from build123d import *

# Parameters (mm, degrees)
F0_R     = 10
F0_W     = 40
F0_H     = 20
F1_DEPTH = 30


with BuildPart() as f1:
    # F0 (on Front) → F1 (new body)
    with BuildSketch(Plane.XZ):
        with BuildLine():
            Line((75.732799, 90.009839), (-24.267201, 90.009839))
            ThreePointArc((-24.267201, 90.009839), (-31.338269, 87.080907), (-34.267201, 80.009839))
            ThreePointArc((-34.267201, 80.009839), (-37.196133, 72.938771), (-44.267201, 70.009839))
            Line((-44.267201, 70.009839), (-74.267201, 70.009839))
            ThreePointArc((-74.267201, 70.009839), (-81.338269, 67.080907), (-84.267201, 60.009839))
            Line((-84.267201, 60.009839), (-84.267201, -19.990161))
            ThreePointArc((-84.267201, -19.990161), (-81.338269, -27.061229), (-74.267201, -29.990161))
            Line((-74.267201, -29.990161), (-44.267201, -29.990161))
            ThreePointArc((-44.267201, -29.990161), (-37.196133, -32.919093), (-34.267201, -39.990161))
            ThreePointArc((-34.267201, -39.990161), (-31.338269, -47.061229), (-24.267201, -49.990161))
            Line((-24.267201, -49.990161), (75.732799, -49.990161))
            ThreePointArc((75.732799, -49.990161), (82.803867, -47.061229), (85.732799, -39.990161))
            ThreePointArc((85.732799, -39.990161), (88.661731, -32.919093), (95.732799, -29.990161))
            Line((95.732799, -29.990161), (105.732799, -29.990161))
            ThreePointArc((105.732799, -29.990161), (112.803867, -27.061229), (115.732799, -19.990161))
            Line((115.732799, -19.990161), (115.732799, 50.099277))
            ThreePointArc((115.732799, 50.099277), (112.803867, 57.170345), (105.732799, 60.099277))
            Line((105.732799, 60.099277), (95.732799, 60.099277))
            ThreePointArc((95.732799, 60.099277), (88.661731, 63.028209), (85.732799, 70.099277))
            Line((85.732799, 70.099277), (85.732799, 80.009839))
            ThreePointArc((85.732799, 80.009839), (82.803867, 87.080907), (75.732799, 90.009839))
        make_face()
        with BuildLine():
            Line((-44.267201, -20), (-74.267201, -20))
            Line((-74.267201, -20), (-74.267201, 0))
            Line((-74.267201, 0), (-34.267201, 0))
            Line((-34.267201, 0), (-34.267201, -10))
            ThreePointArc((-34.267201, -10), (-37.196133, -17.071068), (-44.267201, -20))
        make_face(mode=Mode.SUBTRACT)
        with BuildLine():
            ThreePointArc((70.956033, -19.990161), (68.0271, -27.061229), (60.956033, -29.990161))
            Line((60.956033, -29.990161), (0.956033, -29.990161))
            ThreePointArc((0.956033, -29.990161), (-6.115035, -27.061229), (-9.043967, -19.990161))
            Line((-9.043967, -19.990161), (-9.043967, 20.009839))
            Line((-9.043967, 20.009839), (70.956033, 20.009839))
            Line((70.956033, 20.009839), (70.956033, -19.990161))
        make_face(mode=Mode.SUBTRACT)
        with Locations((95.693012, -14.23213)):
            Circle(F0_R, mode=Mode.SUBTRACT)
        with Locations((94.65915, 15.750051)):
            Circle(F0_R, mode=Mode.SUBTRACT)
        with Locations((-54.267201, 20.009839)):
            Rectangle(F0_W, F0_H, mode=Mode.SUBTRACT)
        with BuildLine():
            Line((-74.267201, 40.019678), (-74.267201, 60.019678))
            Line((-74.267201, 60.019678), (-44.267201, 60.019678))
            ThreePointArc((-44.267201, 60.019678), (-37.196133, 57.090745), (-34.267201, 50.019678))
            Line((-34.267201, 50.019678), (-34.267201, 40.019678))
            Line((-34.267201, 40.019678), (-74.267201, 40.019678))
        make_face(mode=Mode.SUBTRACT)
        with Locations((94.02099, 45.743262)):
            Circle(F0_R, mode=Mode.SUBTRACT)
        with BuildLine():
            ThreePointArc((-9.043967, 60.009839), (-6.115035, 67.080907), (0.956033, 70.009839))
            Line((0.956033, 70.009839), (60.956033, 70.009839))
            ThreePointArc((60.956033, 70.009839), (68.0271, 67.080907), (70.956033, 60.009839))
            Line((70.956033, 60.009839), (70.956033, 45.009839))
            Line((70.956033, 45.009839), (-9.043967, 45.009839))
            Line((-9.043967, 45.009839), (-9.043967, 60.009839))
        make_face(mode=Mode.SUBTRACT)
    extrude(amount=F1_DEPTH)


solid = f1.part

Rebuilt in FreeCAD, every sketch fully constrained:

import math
import FreeCAD as App
import Part
import Sketcher
from FreeCAD import Vector

doc = App.newDocument("Part")
params = doc.addObject("Spreadsheet::Sheet", "Params")
for row, (alias, value) in enumerate([
    ("sketch1_diameter", "20 mm"),
    ("sketch1_width", "100 mm"),
    ("sketch1_width2", "30 mm"),
    ("sketch1_width3", "10 mm"),
    ("sketch1_width4", "60 mm"),
    ("pad1_length", "30 mm"),
], start=1):
    params.set(f"A{row}", alias)
    params.set(f"B{row}", "=" + value)
    params.setAlias(f"B{row}", alias)

body = doc.addObject("PartDesign::Body", "Body")

# Sketch on XZ plane
sketch1 = doc.addObject("Sketcher::SketchObject", "Sketch")
body.addObject(sketch1)
sketch1.AttachmentSupport = (doc.XZ_Plane, [""])
sketch1.MapMode = "FlatFace"
sketch1.addGeometry([
    Part.LineSegment(Vector(76, 90, 0), Vector(-24, 90, 0)),  # 0
    Part.ArcOfCircle(Part.Circle(Vector(-24, 80, 0), Vector(0, 0, 1), 10), math.radians(90), math.radians(180)),  # 1
    Part.ArcOfCircle(Part.Circle(Vector(-44, 80, 0), Vector(0, 0, 1), 10), math.radians(-90), math.radians(0)),  # 2
    Part.LineSegment(Vector(-44, 70, 0), Vector(-74, 70, 0)),  # 3
    Part.ArcOfCircle(Part.Circle(Vector(-74, 60, 0), Vector(0, 0, 1), 10), math.radians(90), math.radians(180)),  # 4
    Part.LineSegment(Vector(-84, 60, 0), Vector(-84, -20, 0)),  # 5
    Part.ArcOfCircle(Part.Circle(Vector(-74, -20, 0), Vector(0, 0, 1), 10), math.radians(180), math.radians(270)),  # 6
    Part.LineSegment(Vector(-74, -30, 0), Vector(-44, -30, 0)),  # 7
    Part.ArcOfCircle(Part.Circle(Vector(-44, -40, 0), Vector(0, 0, 1), 10), math.radians(0), math.radians(90)),  # 8
    Part.ArcOfCircle(Part.Circle(Vector(-24, -40, 0), Vector(0, 0, 1), 10), math.radians(180), math.radians(270)),  # 9
    Part.LineSegment(Vector(-24, -50, 0), Vector(76, -50, 0)),  # 10
    Part.ArcOfCircle(Part.Circle(Vector(76, -40, 0), Vector(0, 0, 1), 10), math.radians(-90), math.radians(0)),  # 11
    Part.ArcOfCircle(Part.Circle(Vector(96, -40, 0), Vector(0, 0, 1), 10), math.radians(90), math.radians(180)),  # 12
    Part.LineSegment(Vector(96, -30, 0), Vector(106, -30, 0)),  # 13
    Part.ArcOfCircle(Part.Circle(Vector(106, -20, 0), Vector(0, 0, 1), 10), math.radians(-90), math.radians(0)),  # 14
    Part.LineSegment(Vector(116, -20, 0), Vector(116, 50, 0)),  # 15
    Part.ArcOfCircle(Part.Circle(Vector(106, 50, 0), Vector(0, 0, 1), 10), math.radians(0), math.radians(90)),  # 16
    Part.LineSegment(Vector(106, 60, 0), Vector(96, 60, 0)),  # 17
    Part.ArcOfCircle(Part.Circle(Vector(96, 70, 0), Vector(0, 0, 1), 10), math.radians(180), math.radians(270)),  # 18
    Part.LineSegment(Vector(86, 70, 0), Vector(86, 80, 0)),  # 19
    Part.ArcOfCircle(Part.Circle(Vector(76, 80, 0), Vector(0, 0, 1), 10), math.radians(0), math.radians(90)),  # 20
    Part.ArcOfCircle(Part.Circle(Vector(-44, -10, 0), Vector(0, 0, 1), 10), math.radians(-90), math.radians(0)),  # 21
    Part.LineSegment(Vector(-44, -20, 0), Vector(-74, -20, 0)),  # 22
    Part.LineSegment(Vector(-74, -20, 0), Vector(-74, 0, 0)),  # 23
    Part.LineSegment(Vector(-74, 0, 0), Vector(-34, 0, 0)),  # 24
    Part.LineSegment(Vector(-34, 0, 0), Vector(-34, -10, 0)),  # 25
    Part.Circle(Vector(96, -14, 0), Vector(0, 0, 1), 10),  # 26
    Part.LineSegment(Vector(71, 20, 0), Vector(71, -20, 0)),  # 27
    Part.ArcOfCircle(Part.Circle(Vector(61, -20, 0), Vector(0, 0, 1), 10), math.radians(-90), math.radians(0)),  # 28
    Part.LineSegment(Vector(61, -30, 0), Vector(1, -30, 0)),  # 29
    Part.ArcOfCircle(Part.Circle(Vector(1, -20, 0), Vector(0, 0, 1), 10), math.radians(180), math.radians(270)),  # 30
    Part.LineSegment(Vector(-9, -20, 0), Vector(-9, 20, 0)),  # 31
    Part.LineSegment(Vector(-9, 20, 0), Vector(71, 20, 0)),  # 32
    Part.Circle(Vector(95, 16, 0), Vector(0, 0, 1), 10),  # 33
    Part.LineSegment(Vector(-34, 10, 0), Vector(-74, 10, 0)),  # 34
    Part.LineSegment(Vector(-74, 10, 0), Vector(-74, 30, 0)),  # 35
    Part.LineSegment(Vector(-74, 30, 0), Vector(-34, 30, 0)),  # 36
    Part.LineSegment(Vector(-34, 30, 0), Vector(-34, 10, 0)),  # 37
    Part.LineSegment(Vector(-34, 40, 0), Vector(-74, 40, 0)),  # 38
    Part.LineSegment(Vector(-74, 40, 0), Vector(-74, 60, 0)),  # 39
    Part.LineSegment(Vector(-74, 60, 0), Vector(-44, 60, 0)),  # 40
    Part.ArcOfCircle(Part.Circle(Vector(-44, 50, 0), Vector(0, 0, 1), 10), math.radians(0), math.radians(90)),  # 41
    Part.LineSegment(Vector(-34, 50, 0), Vector(-34, 40, 0)),  # 42
    Part.LineSegment(Vector(-9, 45, 0), Vector(-9, 60, 0)),  # 43
    Part.ArcOfCircle(Part.Circle(Vector(1, 60, 0), Vector(0, 0, 1), 10), math.radians(90), math.radians(180)),  # 44
    Part.LineSegment(Vector(1, 70, 0), Vector(61, 70, 0)),  # 45
    Part.ArcOfCircle(Part.Circle(Vector(61, 60, 0), Vector(0, 0, 1), 10), math.radians(0), math.radians(90)),  # 46
    Part.LineSegment(Vector(71, 60, 0), Vector(71, 45, 0)),  # 47
    Part.LineSegment(Vector(71, 45, 0), Vector(-9, 45, 0)),  # 48
    Part.Circle(Vector(94, 46, 0), Vector(0, 0, 1), 10),  # 49
], False)
sketch1.addConstraint([
    Sketcher.Constraint("Tangent", 0, 2, 1, 1),
    Sketcher.Constraint("Tangent", 1, 2, 2, 2),
    Sketcher.Constraint("Tangent", 2, 1, 3, 1),
    Sketcher.Constraint("Tangent", 3, 2, 4, 1),
    Sketcher.Constraint("Tangent", 4, 2, 5, 1),
    Sketcher.Constraint("Tangent", 5, 2, 6, 1),
    Sketcher.Constraint("Tangent", 6, 2, 7, 1),
    Sketcher.Constraint("Tangent", 7, 2, 8, 2),
    Sketcher.Constraint("Tangent", 8, 1, 9, 1),
    Sketcher.Constraint("Tangent", 9, 2, 10, 1),
    Sketcher.Constraint("Tangent", 10, 2, 11, 1),
    Sketcher.Constraint("Tangent", 11, 2, 12, 2),
    Sketcher.Constraint("Tangent", 12, 1, 13, 1),
    Sketcher.Constraint("Tangent", 13, 2, 14, 1),
    Sketcher.Constraint("Tangent", 14, 2, 15, 1),
    Sketcher.Constraint("Tangent", 15, 2, 16, 1),
    Sketcher.Constraint("Tangent", 16, 2, 17, 1),
    Sketcher.Constraint("Tangent", 17, 2, 18, 2),
    Sketcher.Constraint("Tangent", 18, 1, 19, 1),
    Sketcher.Constraint("Tangent", 19, 2, 20, 1),
    Sketcher.Constraint("Tangent", 20, 2, 0, 1),
    Sketcher.Constraint("Tangent", 21, 1, 22, 1),
    Sketcher.Constraint("Coincident", 22, 2, 23, 1),
    Sketcher.Constraint("Coincident", 23, 2, 24, 1),
    Sketcher.Constraint("Coincident", 24, 2, 25, 1),
    Sketcher.Constraint("Tangent", 25, 2, 21, 2),
    Sketcher.Constraint("Tangent", 27, 2, 28, 2),
    Sketcher.Constraint("Tangent", 28, 1, 29, 1),
    Sketcher.Constraint("Tangent", 29, 2, 30, 2),
    Sketcher.Constraint("Tangent", 30, 1, 31, 1),
    Sketcher.Constraint("Coincident", 31, 2, 32, 1),
    Sketcher.Constraint("Coincident", 32, 2, 27, 1),
    Sketcher.Constraint("Coincident", 34, 2, 35, 1),
    Sketcher.Constraint("Coincident", 35, 2, 36, 1),
    Sketcher.Constraint("Coincident", 36, 2, 37, 1),
    Sketcher.Constraint("Coincident", 37, 2, 34, 1),
    Sketcher.Constraint("Coincident", 38, 2, 39, 1),
    Sketcher.Constraint("Coincident", 39, 2, 40, 1),
    Sketcher.Constraint("Tangent", 40, 2, 41, 2),
    Sketcher.Constraint("Tangent", 41, 1, 42, 1),
    Sketcher.Constraint("Coincident", 42, 2, 38, 1),
    Sketcher.Constraint("Tangent", 43, 2, 44, 2),
    Sketcher.Constraint("Tangent", 44, 1, 45, 1),
    Sketcher.Constraint("Tangent", 45, 2, 46, 2),
    Sketcher.Constraint("Tangent", 46, 1, 47, 1),
    Sketcher.Constraint("Coincident", 47, 2, 48, 1),
    Sketcher.Constraint("Coincident", 48, 2, 43, 1),
    Sketcher.Constraint("Horizontal", 0),
    Sketcher.Constraint("Horizontal", 3),
    Sketcher.Constraint("Vertical", 5),
    Sketcher.Constraint("Horizontal", 7),
    Sketcher.Constraint("Horizontal", 10),
    Sketcher.Constraint("Horizontal", 13),
    Sketcher.Constraint("Vertical", 15),
    Sketcher.Constraint("Horizontal", 17),
    Sketcher.Constraint("Vertical", 19),
    Sketcher.Constraint("Horizontal", 22),
    Sketcher.Constraint("Vertical", 23),
    Sketcher.Constraint("Horizontal", 24),
    Sketcher.Constraint("Vertical", 25),
    Sketcher.Constraint("Vertical", 27),
    Sketcher.Constraint("Horizontal", 29),
    Sketcher.Constraint("Vertical", 31),
    Sketcher.Constraint("Horizontal", 32),
    Sketcher.Constraint("Horizontal", 34),
    Sketcher.Constraint("Vertical", 35),
    Sketcher.Constraint("Horizontal", 36),
    Sketcher.Constraint("Vertical", 37),
    Sketcher.Constraint("Horizontal", 38),
    Sketcher.Constraint("Vertical", 39),
    Sketcher.Constraint("Horizontal", 40),
    Sketcher.Constraint("Vertical", 42),
    Sketcher.Constraint("Vertical", 43),
    Sketcher.Constraint("Horizontal", 45),
    Sketcher.Constraint("Vertical", 47),
    Sketcher.Constraint("Horizontal", 48),
    Sketcher.Constraint("Equal", 1, 2),
    Sketcher.Constraint("Equal", 2, 4),
    Sketcher.Constraint("Equal", 4, 6),
    Sketcher.Constraint("Equal", 6, 8),
    Sketcher.Constraint("Equal", 8, 9),
    Sketcher.Constraint("Equal", 9, 11),
    Sketcher.Constraint("Equal", 11, 12),
    Sketcher.Constraint("Equal", 12, 14),
    Sketcher.Constraint("Equal", 14, 16),
    Sketcher.Constraint("Equal", 16, 18),
    Sketcher.Constraint("Equal", 18, 20),
    Sketcher.Constraint("Equal", 20, 21),
    Sketcher.Constraint("Equal", 21, 26),
    Sketcher.Constraint("Equal", 26, 28),
    Sketcher.Constraint("Equal", 28, 30),
    Sketcher.Constraint("Equal", 30, 33),
    Sketcher.Constraint("Equal", 33, 41),
    Sketcher.Constraint("Equal", 41, 44),
    Sketcher.Constraint("Equal", 44, 46),
    Sketcher.Constraint("Equal", 46, 49),
    Sketcher.Constraint("PointOnObject", 23, 2, -1),
    Sketcher.Constraint("Horizontal", 1, 3, 2, 3),
    Sketcher.Constraint("Horizontal", 8, 3, 9, 3),
    Sketcher.Constraint("Horizontal", 11, 3, 12, 3),
    Sketcher.Constraint("Horizontal", 14, 3, 28, 3),
    Sketcher.Constraint("Horizontal", 4, 3, 44, 3),
    Sketcher.Constraint("Vertical", 2, 3, 8, 3),
    Sketcher.Constraint("Vertical", 12, 3, 18, 3),
    Sketcher.Constraint("Vertical", 8, 3, 21, 3),
    Sketcher.Constraint("Vertical", 21, 3, 41, 3),
    Sketcher.Constraint("Vertical", 30, 3, 44, 3),
    Sketcher.Constraint("Vertical", 28, 3, 46, 3),
    Sketcher.Constraint("Vertical", 6, 2, 22, 2),
    Sketcher.Constraint("Vertical", 23, 2, 34, 2),
    Sketcher.Constraint("Vertical", 25, 2, 36, 2),
    Sketcher.Constraint("Vertical", 35, 2, 38, 2),
    Sketcher.Constraint("Equal", 48, 5),
    Sketcher.Constraint("Equal", 17, 25),
    Sketcher.Constraint("Equal", 38, 27),
    Sketcher.Constraint("Equal", 23, 35),
    Sketcher.Constraint("Equal", 37, 39),
    Sketcher.Constraint("Diameter", 26, 20.0),
    Sketcher.Constraint("DistanceX", 0, 2, 0, 1, 100.0),
    Sketcher.Constraint("DistanceX", 3, 2, 3, 1, 30.0),
    Sketcher.Constraint("DistanceX", 13, 1, 13, 2, 10.0),
    Sketcher.Constraint("DistanceX", 29, 2, 29, 1, 60.0),
    Sketcher.Constraint("DistanceY", 43, 1, 43, 2, 15.0),
    Sketcher.Constraint("DistanceY", 15, 1, 15, 2, 70.089438),
    Sketcher.Constraint("DistanceX", 1, 3, -1, 1, 24.267202),
    Sketcher.Constraint("DistanceY", -1, 1, 1, 3, 80.00984),
    Sketcher.Constraint("DistanceX", -1, 1, 26, 3, 95.693012),
    Sketcher.Constraint("DistanceY", 26, 3, -1, 1, 14.23213),
    Sketcher.Constraint("DistanceX", -1, 1, 28, 3, 60.956032),
    Sketcher.Constraint("DistanceX", -1, 1, 33, 3, 94.65915),
    Sketcher.Constraint("DistanceY", -1, 1, 33, 3, 15.750051),
    Sketcher.Constraint("DistanceX", -1, 1, 49, 3, 94.02099),
    Sketcher.Constraint("DistanceY", -1, 1, 34, 2, 10.009839),
    Sketcher.Constraint("DistanceY", -1, 1, 41, 3, 50.019677),
    Sketcher.Constraint("DistanceY", -1, 1, 49, 3, 45.743262),
])
sketch1.setExpression("Constraints[117]", "Params.sketch1_diameter")
sketch1.setExpression("Constraints[118]", "Params.sketch1_width")
sketch1.setExpression("Constraints[119]", "Params.sketch1_width2")
sketch1.setExpression("Constraints[120]", "Params.sketch1_width3")
sketch1.setExpression("Constraints[121]", "Params.sketch1_width4")
pad1 = doc.addObject("PartDesign::Pad", "Pad")
body.addObject(pad1)
pad1.Profile = sketch1
pad1.setExpression("Length", "Params.pad1_length")

doc.recompute()
